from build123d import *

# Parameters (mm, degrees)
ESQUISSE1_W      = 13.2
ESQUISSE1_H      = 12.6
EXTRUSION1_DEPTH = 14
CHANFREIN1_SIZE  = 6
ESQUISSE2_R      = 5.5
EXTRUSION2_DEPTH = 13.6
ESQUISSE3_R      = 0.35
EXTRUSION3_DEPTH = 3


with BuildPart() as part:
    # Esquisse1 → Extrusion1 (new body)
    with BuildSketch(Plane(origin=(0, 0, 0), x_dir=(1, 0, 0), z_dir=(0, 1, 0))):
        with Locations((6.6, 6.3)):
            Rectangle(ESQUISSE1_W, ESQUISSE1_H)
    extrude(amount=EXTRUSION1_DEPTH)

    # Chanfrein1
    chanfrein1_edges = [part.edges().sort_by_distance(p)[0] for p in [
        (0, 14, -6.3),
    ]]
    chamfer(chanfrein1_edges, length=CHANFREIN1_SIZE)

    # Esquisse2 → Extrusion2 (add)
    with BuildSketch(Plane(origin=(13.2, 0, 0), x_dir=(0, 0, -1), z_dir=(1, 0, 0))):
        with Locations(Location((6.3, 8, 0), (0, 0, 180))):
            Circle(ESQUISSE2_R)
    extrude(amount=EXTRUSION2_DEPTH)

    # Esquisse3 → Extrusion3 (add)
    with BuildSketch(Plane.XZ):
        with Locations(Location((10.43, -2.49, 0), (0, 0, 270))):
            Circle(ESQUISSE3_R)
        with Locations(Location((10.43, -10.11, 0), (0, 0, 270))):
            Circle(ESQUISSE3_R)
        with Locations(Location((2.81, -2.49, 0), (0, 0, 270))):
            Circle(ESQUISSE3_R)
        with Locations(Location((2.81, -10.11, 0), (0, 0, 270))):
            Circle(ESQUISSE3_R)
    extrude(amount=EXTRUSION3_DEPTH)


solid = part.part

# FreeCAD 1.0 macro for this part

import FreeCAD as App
import Part
import Sketcher

V = App.Vector
Q = App.Units.Quantity


def edges_at(feature, points):
    """Names of the edges that pass closest to the given points."""
    edges = feature.Shape.Edges
    near = lambda p: min(range(len(edges)), key=lambda i: edges[i].distToShape(Part.Vertex(*p))[0])
    return sorted({f"Edge{near(p) + 1}" for p in points})

doc = App.newDocument("Part")
body = doc.addObject("PartDesign::Body", "Body")

# Sketch on XZ plane
sketch1 = body.newObject("Sketcher::SketchObject", "Sketch")
sketch1.AttachmentSupport = (doc.getObject("XZ_Plane"), [""])
sketch1.MapMode = "FlatFace"
sketch1.addGeometry(Part.LineSegment(V(0, -13, 0), V(0, 0, 0)), False)
sketch1.addGeometry(Part.LineSegment(V(0, 0, 0), V(13, 0, 0)), False)
sketch1.addGeometry(Part.LineSegment(V(13, 0, 0), V(13, -13, 0)), False)
sketch1.addGeometry(Part.LineSegment(V(13, -13, 0), V(0, -13, 0)), False)
sketch1.addConstraint(Sketcher.Constraint("Coincident", 0, 2, 1, 1))
sketch1.addConstraint(Sketcher.Constraint("Coincident", 1, 2, 2, 1))
sketch1.addConstraint(Sketcher.Constraint("Coincident", 2, 2, 3, 1))
sketch1.addConstraint(Sketcher.Constraint("Coincident", 3, 2, 0, 1))
sketch1.addConstraint(Sketcher.Constraint("Vertical", 0))
sketch1.addConstraint(Sketcher.Constraint("Horizontal", 1))
sketch1.addConstraint(Sketcher.Constraint("Vertical", 2))
sketch1.addConstraint(Sketcher.Constraint("Horizontal", 3))
sketch1.addConstraint(Sketcher.Constraint("Coincident", 0, 2, -1, 1))
sketch1.addConstraint(Sketcher.Constraint("DistanceX", 1, 1, 1, 2, Q("13.2 mm")))
sketch1.addConstraint(Sketcher.Constraint("DistanceY", 0, 1, 0, 2, Q("12.6 mm")))
pad1 = body.newObject("PartDesign::Pad", "Pad")
pad1.Profile = sketch1
pad1.Length = 14
pad1.Reversed = True
doc.recompute()

chamfer = body.newObject("PartDesign::Chamfer", "Chamfer")
chamfer.Base = (pad1, edges_at(pad1, [(0, 14, -6.3)]))
chamfer.Size = 6

# Sketch on YZ plane
sketch2 = body.newObject("Sketcher::SketchObject", "Sketch001")
sketch2.AttachmentSupport = (doc.getObject("YZ_Plane"), [""])
sketch2.MapMode = "FlatFace"
sketch2.AttachmentOffset = App.Placement(V(0, 0, 13.2), App.Rotation())
sketch2.addGeometry(Part.Circle(V(8, -6, 0), V(0, 0, 1), 6), False)
sketch2.addConstraint(Sketcher.Constraint("Diameter", 0, Q("11 mm")))
sketch2.addConstraint(Sketcher.Constraint("DistanceX", -1, 1, 0, 3, Q("8 mm")))
sketch2.addConstraint(Sketcher.Constraint("DistanceY", 0, 3, -1, 1, Q("6.3 mm")))
pad2 = body.newObject("PartDesign::Pad", "Pad001")
pad2.Profile = sketch2
pad2.Length = 13.6

# Sketch on XZ plane
sketch3 = body.newObject("Sketcher::SketchObject", "Sketch002")
sketch3.AttachmentSupport = (doc.getObject("XZ_Plane"), [""])
sketch3.MapMode = "FlatFace"
sketch3.addGeometry(Part.Circle(V(10.43, -2.49, 0), V(0, 0, 1), 0.35), False)
sketch3.addGeometry(Part.Circle(V(10.43, -10.11, 0), V(0, 0, 1), 0.35), False)
sketch3.addGeometry(Part.Circle(V(2.81, -2.49, 0), V(0, 0, 1), 0.35), False)
sketch3.addGeometry(Part.Circle(V(2.81, -10.11, 0), V(0, 0, 1), 0.35), False)
sketch3.addConstraint(Sketcher.Constraint("Equal", 0, 1))
sketch3.addConstraint(Sketcher.Constraint("Equal", 1, 2))
sketch3.addConstraint(Sketcher.Constraint("Equal", 2, 3))
sketch3.addConstraint(Sketcher.Constraint("Horizontal", 0, 3, 2, 3))
sketch3.addConstraint(Sketcher.Constraint("Horizontal", 1, 3, 3, 3))
sketch3.addConstraint(Sketcher.Constraint("Vertical", 0, 3, 1, 3))
sketch3.addConstraint(Sketcher.Constraint("Vertical", 2, 3, 3, 3))
sketch3.addConstraint(Sketcher.Constraint("Diameter", 0, Q("0.7 mm")))
sketch3.addConstraint(Sketcher.Constraint("DistanceX", -1, 1, 0, 3, Q("10.43 mm")))
sketch3.addConstraint(Sketcher.Constraint("DistanceY", 0, 3, -1, 1, Q("2.49 mm")))
sketch3.addConstraint(Sketcher.Constraint("DistanceY", 1, 3, -1, 1, Q("10.11 mm")))
sketch3.addConstraint(Sketcher.Constraint("DistanceX", -1, 1, 2, 3, Q("2.81 mm")))
pad3 = body.newObject("PartDesign::Pad", "Pad002")
pad3.Profile = sketch3
pad3.Length = 3

doc.recompute()
